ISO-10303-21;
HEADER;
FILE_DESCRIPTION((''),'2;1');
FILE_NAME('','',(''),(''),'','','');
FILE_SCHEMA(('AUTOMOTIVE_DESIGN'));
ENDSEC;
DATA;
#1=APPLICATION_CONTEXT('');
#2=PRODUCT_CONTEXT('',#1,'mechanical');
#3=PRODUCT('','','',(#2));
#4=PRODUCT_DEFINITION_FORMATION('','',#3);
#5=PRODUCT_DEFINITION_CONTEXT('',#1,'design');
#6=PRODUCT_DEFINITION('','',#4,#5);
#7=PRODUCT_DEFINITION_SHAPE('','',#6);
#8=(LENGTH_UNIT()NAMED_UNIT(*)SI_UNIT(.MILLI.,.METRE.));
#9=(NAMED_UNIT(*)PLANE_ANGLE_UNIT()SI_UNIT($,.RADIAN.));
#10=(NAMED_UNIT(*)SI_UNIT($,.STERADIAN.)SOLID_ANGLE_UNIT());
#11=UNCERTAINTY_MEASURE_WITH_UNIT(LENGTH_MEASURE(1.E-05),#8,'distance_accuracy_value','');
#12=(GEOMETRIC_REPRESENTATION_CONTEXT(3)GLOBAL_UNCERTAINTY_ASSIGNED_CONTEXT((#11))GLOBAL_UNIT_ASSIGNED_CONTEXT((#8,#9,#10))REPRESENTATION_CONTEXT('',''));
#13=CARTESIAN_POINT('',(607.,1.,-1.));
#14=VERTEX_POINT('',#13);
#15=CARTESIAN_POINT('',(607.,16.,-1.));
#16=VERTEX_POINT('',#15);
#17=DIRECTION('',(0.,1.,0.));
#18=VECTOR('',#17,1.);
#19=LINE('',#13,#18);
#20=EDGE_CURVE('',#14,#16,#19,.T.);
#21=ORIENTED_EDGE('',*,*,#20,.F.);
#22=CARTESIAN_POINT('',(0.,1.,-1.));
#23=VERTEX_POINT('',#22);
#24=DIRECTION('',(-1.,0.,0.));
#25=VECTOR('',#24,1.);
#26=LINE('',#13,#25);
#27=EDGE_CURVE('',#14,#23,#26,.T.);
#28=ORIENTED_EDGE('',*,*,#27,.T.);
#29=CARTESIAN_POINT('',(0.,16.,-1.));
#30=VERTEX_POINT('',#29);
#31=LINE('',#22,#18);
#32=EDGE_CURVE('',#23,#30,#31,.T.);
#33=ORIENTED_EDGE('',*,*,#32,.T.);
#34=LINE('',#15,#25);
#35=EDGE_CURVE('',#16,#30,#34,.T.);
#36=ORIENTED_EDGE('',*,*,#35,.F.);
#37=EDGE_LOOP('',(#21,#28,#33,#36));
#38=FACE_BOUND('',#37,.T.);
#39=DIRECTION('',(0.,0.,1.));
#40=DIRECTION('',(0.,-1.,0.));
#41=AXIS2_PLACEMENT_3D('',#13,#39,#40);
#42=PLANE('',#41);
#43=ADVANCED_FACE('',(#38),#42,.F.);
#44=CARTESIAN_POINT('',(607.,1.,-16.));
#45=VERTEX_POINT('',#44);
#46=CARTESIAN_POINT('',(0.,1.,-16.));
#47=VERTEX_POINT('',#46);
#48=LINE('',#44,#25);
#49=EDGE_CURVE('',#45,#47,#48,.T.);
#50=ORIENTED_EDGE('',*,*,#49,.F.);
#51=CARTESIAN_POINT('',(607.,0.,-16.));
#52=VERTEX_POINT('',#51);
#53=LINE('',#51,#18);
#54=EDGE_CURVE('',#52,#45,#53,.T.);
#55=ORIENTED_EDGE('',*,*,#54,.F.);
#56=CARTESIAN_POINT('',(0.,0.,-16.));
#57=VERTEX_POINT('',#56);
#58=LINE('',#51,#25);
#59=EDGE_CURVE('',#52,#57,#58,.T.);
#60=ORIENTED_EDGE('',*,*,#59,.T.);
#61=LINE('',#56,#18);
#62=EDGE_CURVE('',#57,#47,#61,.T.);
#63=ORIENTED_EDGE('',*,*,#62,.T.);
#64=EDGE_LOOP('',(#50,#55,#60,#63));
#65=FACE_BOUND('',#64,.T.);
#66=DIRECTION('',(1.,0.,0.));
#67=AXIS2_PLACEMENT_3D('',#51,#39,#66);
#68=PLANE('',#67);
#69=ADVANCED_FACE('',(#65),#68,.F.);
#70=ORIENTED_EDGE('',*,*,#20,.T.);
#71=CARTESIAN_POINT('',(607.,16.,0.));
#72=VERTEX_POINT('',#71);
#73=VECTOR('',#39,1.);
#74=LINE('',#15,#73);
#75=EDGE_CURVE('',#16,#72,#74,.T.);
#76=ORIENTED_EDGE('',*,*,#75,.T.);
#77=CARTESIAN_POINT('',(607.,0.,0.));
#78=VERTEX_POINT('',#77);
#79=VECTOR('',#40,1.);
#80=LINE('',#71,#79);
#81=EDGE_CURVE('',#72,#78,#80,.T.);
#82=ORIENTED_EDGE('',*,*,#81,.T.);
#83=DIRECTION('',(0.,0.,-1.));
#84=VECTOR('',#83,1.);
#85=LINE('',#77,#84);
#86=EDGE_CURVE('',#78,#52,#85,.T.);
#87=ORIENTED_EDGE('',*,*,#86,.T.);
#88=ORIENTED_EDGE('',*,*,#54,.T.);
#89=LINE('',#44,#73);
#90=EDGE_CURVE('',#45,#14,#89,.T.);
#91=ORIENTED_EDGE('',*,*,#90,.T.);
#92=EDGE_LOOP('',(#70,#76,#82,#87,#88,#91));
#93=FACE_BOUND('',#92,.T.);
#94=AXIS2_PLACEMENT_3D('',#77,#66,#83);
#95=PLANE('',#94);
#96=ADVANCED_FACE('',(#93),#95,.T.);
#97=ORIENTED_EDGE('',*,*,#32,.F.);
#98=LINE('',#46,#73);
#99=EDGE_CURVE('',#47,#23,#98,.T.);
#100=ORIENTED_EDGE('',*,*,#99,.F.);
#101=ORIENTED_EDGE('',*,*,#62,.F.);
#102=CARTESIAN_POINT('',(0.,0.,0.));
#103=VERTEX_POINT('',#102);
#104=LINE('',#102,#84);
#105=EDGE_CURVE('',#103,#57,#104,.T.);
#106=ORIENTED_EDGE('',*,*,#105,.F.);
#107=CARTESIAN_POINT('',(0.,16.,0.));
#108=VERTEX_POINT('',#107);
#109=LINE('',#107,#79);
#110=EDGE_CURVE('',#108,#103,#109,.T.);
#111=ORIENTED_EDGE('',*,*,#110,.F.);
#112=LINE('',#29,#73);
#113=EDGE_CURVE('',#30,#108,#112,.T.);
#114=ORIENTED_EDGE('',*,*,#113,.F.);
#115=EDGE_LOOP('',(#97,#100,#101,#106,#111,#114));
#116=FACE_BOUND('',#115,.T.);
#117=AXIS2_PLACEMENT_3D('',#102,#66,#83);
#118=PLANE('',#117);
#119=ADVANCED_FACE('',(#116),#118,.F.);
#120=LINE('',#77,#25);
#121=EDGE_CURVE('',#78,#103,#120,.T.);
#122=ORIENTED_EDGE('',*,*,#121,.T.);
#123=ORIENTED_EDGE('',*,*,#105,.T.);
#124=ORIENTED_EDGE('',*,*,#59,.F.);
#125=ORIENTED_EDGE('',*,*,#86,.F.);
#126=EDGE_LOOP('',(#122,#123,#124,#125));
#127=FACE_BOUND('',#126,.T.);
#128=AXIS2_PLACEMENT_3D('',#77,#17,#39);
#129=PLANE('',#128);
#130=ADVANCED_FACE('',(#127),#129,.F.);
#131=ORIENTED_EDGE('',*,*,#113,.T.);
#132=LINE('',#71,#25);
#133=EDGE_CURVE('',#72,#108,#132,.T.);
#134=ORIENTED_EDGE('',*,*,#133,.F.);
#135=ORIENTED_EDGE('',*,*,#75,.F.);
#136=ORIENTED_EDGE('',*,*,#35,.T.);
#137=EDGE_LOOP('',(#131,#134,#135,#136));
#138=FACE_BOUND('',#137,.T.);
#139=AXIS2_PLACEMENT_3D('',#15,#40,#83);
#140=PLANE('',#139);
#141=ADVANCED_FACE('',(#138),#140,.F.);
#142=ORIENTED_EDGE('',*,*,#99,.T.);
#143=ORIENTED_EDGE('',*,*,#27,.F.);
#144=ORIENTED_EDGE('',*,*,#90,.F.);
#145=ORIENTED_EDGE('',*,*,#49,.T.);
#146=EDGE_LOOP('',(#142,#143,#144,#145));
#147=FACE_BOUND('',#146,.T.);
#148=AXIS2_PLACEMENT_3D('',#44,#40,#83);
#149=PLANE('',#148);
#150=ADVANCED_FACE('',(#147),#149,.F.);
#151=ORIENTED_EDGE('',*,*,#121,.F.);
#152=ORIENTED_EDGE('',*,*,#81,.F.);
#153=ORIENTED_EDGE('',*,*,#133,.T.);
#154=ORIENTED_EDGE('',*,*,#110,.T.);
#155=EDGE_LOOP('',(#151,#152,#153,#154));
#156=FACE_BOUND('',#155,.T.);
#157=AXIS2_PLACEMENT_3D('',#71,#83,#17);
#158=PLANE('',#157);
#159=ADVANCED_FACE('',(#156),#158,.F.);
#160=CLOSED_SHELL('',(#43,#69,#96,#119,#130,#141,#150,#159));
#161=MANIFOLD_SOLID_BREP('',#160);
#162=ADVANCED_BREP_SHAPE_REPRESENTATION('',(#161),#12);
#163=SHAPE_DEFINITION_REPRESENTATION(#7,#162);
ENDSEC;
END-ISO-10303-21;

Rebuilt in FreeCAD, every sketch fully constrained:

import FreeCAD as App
import Part
import Sketcher
from FreeCAD import Vector


def add_polygon(sketch, points):
    """Adds a closed chain of lines whose ends are joined by coincident constraints."""
    first, n = sketch.GeometryCount, len(points)
    for a, b in zip(points, points[1:] + points[:1]):
        sketch.addGeometry(Part.LineSegment(App.Vector(*a, 0), App.Vector(*b, 0)), False)
    for i in range(n):
        sketch.addConstraint(Sketcher.Constraint("Coincident", first + i, 2, first + (i + 1) % n, 1))

doc = App.newDocument("Part")
body = doc.addObject("PartDesign::Body", "Body")

# Sketch on YZ plane
sketch1 = body.newObject("Sketcher::SketchObject", "Sketch")
sketch1.AttachmentSupport = (doc.getObject("YZ_Plane"), [""])
sketch1.MapMode = "FlatFace"
add_polygon(sketch1, [(16, 0), (0, 0), (0, -16), (1, -16), (1, -1), (16, -1)])  # lines 0-5
sketch1.addConstraint(Sketcher.Constraint("Horizontal", 0))
sketch1.addConstraint(Sketcher.Constraint("Vertical", 1))
sketch1.addConstraint(Sketcher.Constraint("Horizontal", 2))
sketch1.addConstraint(Sketcher.Constraint("Vertical", 3))
sketch1.addConstraint(Sketcher.Constraint("Horizontal", 4))
sketch1.addConstraint(Sketcher.Constraint("Vertical", 5))
sketch1.addConstraint(Sketcher.Constraint("Coincident", 0, 2, -1, 1))
sketch1.addConstraint(Sketcher.Constraint("Equal", 0, 1))
sketch1.addConstraint(Sketcher.Constraint("Equal", 4, 3))
sketch1.addConstraint(Sketcher.Constraint("DistanceX", 0, 2, 0, 1, 16.0))
sketch1.addConstraint(Sketcher.Constraint("DistanceX", 2, 1, 2, 2, 1.0))
pad1 = body.newObject("PartDesign::Pad", "Pad")
pad1.Profile = sketch1
pad1.Length = 607

doc.recompute()
